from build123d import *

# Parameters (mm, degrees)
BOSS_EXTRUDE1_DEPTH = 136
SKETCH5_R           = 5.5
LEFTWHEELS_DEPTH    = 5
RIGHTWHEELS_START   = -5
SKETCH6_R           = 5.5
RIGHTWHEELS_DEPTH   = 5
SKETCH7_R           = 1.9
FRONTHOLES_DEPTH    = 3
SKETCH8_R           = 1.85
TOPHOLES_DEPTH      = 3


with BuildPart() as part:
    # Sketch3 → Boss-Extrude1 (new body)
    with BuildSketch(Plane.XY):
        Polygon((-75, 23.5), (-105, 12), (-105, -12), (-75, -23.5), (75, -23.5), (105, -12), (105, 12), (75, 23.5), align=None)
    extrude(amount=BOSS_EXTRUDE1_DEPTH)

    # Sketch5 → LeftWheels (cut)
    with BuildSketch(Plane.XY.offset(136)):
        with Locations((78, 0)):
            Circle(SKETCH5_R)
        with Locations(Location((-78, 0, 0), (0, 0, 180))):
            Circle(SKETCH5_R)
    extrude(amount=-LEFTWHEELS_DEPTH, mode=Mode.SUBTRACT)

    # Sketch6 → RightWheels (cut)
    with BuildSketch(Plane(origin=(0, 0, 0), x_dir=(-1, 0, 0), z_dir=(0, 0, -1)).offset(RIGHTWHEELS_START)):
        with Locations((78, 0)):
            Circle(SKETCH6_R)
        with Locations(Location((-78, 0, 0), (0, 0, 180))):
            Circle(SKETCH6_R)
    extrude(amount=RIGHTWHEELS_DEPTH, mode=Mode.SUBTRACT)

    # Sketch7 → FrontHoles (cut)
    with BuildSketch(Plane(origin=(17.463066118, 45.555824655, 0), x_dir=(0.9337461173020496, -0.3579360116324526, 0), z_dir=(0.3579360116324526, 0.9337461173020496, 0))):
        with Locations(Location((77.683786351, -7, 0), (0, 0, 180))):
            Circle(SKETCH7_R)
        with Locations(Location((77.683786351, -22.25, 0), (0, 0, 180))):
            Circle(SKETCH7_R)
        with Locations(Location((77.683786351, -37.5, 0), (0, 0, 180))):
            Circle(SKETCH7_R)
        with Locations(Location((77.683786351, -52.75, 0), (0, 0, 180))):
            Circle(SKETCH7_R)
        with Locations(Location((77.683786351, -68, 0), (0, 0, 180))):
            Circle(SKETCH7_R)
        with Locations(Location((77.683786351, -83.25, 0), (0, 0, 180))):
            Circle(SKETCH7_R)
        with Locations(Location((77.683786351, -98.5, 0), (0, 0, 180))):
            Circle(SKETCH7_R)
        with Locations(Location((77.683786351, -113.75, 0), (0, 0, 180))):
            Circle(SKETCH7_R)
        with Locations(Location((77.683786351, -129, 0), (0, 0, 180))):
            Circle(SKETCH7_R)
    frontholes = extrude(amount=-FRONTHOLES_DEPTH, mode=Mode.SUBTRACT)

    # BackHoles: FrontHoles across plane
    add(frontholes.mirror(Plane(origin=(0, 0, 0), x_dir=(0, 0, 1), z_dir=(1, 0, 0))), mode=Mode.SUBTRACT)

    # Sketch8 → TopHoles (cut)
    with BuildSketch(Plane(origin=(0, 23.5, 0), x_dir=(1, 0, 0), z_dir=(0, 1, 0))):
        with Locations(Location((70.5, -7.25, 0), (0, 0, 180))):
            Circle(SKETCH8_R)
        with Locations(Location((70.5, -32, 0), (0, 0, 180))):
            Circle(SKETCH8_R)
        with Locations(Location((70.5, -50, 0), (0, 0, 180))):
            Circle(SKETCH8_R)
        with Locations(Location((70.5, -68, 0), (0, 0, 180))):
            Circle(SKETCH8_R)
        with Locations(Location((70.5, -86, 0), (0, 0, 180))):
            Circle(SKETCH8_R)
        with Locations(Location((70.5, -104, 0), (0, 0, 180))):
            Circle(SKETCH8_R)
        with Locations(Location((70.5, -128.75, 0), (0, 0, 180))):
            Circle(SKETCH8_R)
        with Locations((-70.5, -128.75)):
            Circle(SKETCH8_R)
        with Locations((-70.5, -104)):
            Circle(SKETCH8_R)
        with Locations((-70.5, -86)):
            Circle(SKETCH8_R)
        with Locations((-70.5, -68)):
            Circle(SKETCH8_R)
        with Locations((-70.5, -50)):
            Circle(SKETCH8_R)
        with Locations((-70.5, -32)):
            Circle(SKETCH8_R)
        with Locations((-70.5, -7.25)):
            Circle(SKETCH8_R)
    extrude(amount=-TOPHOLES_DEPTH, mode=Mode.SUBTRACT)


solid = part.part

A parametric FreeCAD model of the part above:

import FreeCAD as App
import Part
import Sketcher

V = App.Vector


def add_polygon(sketch, points):
    """Adds a closed chain of lines whose ends are joined by coincident constraints."""
    first, n = sketch.GeometryCount, len(points)
    for a, b in zip(points, points[1:] + points[:1]):
        sketch.addGeometry(Part.LineSegment(App.Vector(*a, 0), App.Vector(*b, 0)), False)
    for i in range(n):
        sketch.addConstraint(Sketcher.Constraint("Coincident", first + i, 2, first + (i + 1) % n, 1))

doc = App.newDocument("Part")
body = doc.addObject("PartDesign::Body", "Body")

# Sketch on XY plane
sketch1 = body.newObject("Sketcher::SketchObject", "Sketch")
sketch1.AttachmentSupport = (doc.getObject("XY_Plane"), [""])
sketch1.MapMode = "FlatFace"
add_polygon(sketch1, [(-75, 24), (-105, 12), (-105, -12), (-75, -24), (75, -24), (105, -12), (105, 12), (75, 24)])  # lines 0-7
sketch1.addConstraint(Sketcher.Constraint("Vertical", 1))
sketch1.addConstraint(Sketcher.Constraint("Horizontal", 3))
sketch1.addConstraint(Sketcher.Constraint("Vertical", 5))
sketch1.addConstraint(Sketcher.Constraint("Horizontal", 7))
sketch1.addConstraint(Sketcher.Constraint("Symmetric", 0, 2, 4, 2, -1, 1))
sketch1.addConstraint(Sketcher.Constraint("Symmetric", 2, 2, 6, 2, -1, 1))
sketch1.addConstraint(Sketcher.Constraint("Parallel", 0, 4))
sketch1.addConstraint(Sketcher.Constraint("Parallel", 2, 6))
sketch1.addConstraint(Sketcher.Constraint("Horizontal", 1, 2, 4, 2))
sketch1.addConstraint(Sketcher.Constraint("Vertical", 3, 2, 6, 2))
sketch1.addConstraint(Sketcher.Constraint("DistanceX", 3, 1, 3, 2, 150.0))
sketch1.addConstraint(Sketcher.Constraint("DistanceY", 1, 2, 1, 1, 24.0))
sketch1.addConstraint(Sketcher.Constraint("DistanceX", 0, 2, -1, 1, 105.0))
sketch1.addConstraint(Sketcher.Constraint("DistanceY", 3, 2, 6, 2, 47.0))
pad1 = body.newObject("PartDesign::Pad", "Pad")
pad1.Profile = sketch1
pad1.Length = 136

# Sketch on XY plane
sketch2 = body.newObject("Sketcher::SketchObject", "Sketch001")
sketch2.AttachmentSupport = (doc.getObject("XY_Plane"), [""])
sketch2.MapMode = "FlatFace"
sketch2.AttachmentOffset = App.Placement(V(0, 0, 136), App.Rotation())
sketch2.addGeometry(Part.Circle(V(78, 0, 0), V(0, 0, 1), 6), False)
sketch2.addGeometry(Part.Circle(V(-78, 0, 0), V(0, 0, 1), 6), False)
sketch2.addConstraint(Sketcher.Constraint("Equal", 0, 1))
sketch2.addConstraint(Sketcher.Constraint("Symmetric", 0, 3, 1, 3, -1, 1))
sketch2.addConstraint(Sketcher.Constraint("PointOnObject", 0, 3, -1))
sketch2.addConstraint(Sketcher.Constraint("Diameter", 0, 11.0))
sketch2.addConstraint(Sketcher.Constraint("DistanceX", -1, 1, 0, 3, 78.0))
pocket1 = body.newObject("PartDesign::Pocket", "Pocket")
pocket1.Profile = sketch2
pocket1.Length = 5

# Sketch on XY plane
sketch3 = body.newObject("Sketcher::SketchObject", "Sketch002")
sketch3.AttachmentSupport = (doc.getObject("XY_Plane"), [""])
sketch3.MapMode = "FlatFace"
sketch3.AttachmentOffset = App.Placement(V(0, 0, 5), App.Rotation())
sketch3.addGeometry(Part.Circle(V(-78, 0, 0), V(0, 0, 1), 6), False)
sketch3.addGeometry(Part.Circle(V(78, 0, 0), V(0, 0, 1), 6), False)
sketch3.addConstraint(Sketcher.Constraint("Equal", 0, 1))
sketch3.addConstraint(Sketcher.Constraint("Symmetric", 0, 3, 1, 3, -1, 1))
sketch3.addConstraint(Sketcher.Constraint("PointOnObject", 0, 3, -1))
sketch3.addConstraint(Sketcher.Constraint("Diameter", 0, 11.0))
sketch3.addConstraint(Sketcher.Constraint("DistanceX", 0, 3, -1, 1, 78.0))
pocket2 = body.newObject("PartDesign::Pocket", "Pocket001")
pocket2.Profile = sketch3
pocket2.Length = 5

# Sketch on an angled plane
sketch4 = body.newObject("Sketcher::SketchObject", "Sketch003")
sketch4.Placement = App.Placement(V(17.463066, 45.555825, 0), App.Rotation(V(0.933746117, -0.357936012, 0), V(0, 0, -1), V(0.357936012, 0.933746117, 0), "ZXY"))
sketch4.addGeometry(Part.Circle(V(77.7, -7, 0), V(0, 0, 1), 1.9), False)
sketch4.addGeometry(Part.Circle(V(77.7, -22.2, 0), V(0, 0, 1), 1.9), False)
sketch4.addGeometry(Part.Circle(V(77.7, -37.5, 0), V(0, 0, 1), 1.9), False)
sketch4.addGeometry(Part.Circle(V(77.7, -52.7, 0), V(0, 0, 1), 1.9), False)
sketch4.addGeometry(Part.Circle(V(77.7, -68, 0), V(0, 0, 1), 1.9), False)
sketch4.addGeometry(Part.Circle(V(77.7, -83.2, 0), V(0, 0, 1), 1.9), False)
sketch4.addGeometry(Part.Circle(V(77.7, -98.5, 0), V(0, 0, 1), 1.9), False)
sketch4.addGeometry(Part.Circle(V(77.7, -113.7, 0), V(0, 0, 1), 1.9), False)
sketch4.addGeometry(Part.Circle(V(77.7, -129, 0), V(0, 0, 1), 1.9), False)
sketch4.addConstraint(Sketcher.Constraint("Equal", 0, 1))
sketch4.addConstraint(Sketcher.Constraint("Equal", 1, 2))
sketch4.addConstraint(Sketcher.Constraint("Equal", 2, 3))
sketch4.addConstraint(Sketcher.Constraint("Equal", 3, 4))
sketch4.addConstraint(Sketcher.Constraint("Equal", 4, 5))
sketch4.addConstraint(Sketcher.Constraint("Equal", 5, 6))
sketch4.addConstraint(Sketcher.Constraint("Equal", 6, 7))
sketch4.addConstraint(Sketcher.Constraint("Equal", 7, 8))
sketch4.addConstraint(Sketcher.Constraint("Vertical", 0, 3, 1, 3))
sketch4.addConstraint(Sketcher.Constraint("Vertical", 1, 3, 2, 3))
sketch4.addConstraint(Sketcher.Constraint("Vertical", 2, 3, 3, 3))
sketch4.addConstraint(Sketcher.Constraint("Vertical", 3, 3, 4, 3))
sketch4.addConstraint(Sketcher.Constraint("Vertical", 4, 3, 5, 3))
sketch4.addConstraint(Sketcher.Constraint("Vertical", 5, 3, 6, 3))
sketch4.addConstraint(Sketcher.Constraint("Vertical", 6, 3, 7, 3))
sketch4.addConstraint(Sketcher.Constraint("Vertical", 7, 3, 8, 3))
sketch4.addConstraint(Sketcher.Constraint("Diameter", 0, 3.8))
sketch4.addConstraint(Sketcher.Constraint("DistanceY", 0, 3, -1, 1, 7.0))
sketch4.addConstraint(Sketcher.Constraint("DistanceY", 4, 3, -1, 1, 68.0))
sketch4.addConstraint(Sketcher.Constraint("DistanceY", 8, 3, -1, 1, 129.0))
sketch4.addConstraint(Sketcher.Constraint("DistanceY", 5, 3, 1, 3, 61.0))
sketch4.addConstraint(Sketcher.Constraint("DistanceY", 6, 3, 2, 3, 61.0))
sketch4.addConstraint(Sketcher.Constraint("DistanceY", 7, 3, 3, 3, 61.0))
sketch4.addConstraint(Sketcher.Constraint("DistanceY", 2, 3, -1, 1, 37.5))
sketch4.addConstraint(Sketcher.Constraint("DistanceY", 3, 3, 1, 3, 30.5))
sketch4.addConstraint(Sketcher.Constraint("DistanceY", 1, 3, -1, 1, 22.25))
sketch4.addConstraint(Sketcher.Constraint("DistanceX", -1, 1, 0, 3, 77.683786))
pocket3 = body.newObject("PartDesign::Pocket", "Pocket002")
pocket3.Profile = sketch4
pocket3.Length = 3
doc.recompute()

mirrored = body.newObject("PartDesign::Mirrored", "Mirrored")
mirrored.Originals = [pocket3]
mirrored.MirrorPlane = (doc.getObject("YZ_Plane"), [""])
body.Tip = mirrored

# Sketch on XZ plane
sketch5 = body.newObject("Sketcher::SketchObject", "Sketch004")
sketch5.AttachmentSupport = (doc.getObject("XZ_Plane"), [""])
sketch5.MapMode = "FlatFace"
sketch5.AttachmentOffset = App.Placement(V(0, 0, -23.5), App.Rotation())
sketch5.addGeometry(Part.Circle(V(70.5, 7.2, 0), V(0, 0, 1), 1.9), False)
sketch5.addGeometry(Part.Circle(V(70.5, 32, 0), V(0, 0, 1), 1.9), False)
sketch5.addGeometry(Part.Circle(V(70.5, 50, 0), V(0, 0, 1), 1.9), False)
sketch5.addGeometry(Part.Circle(V(70.5, 68, 0), V(0, 0, 1), 1.9), False)
sketch5.addGeometry(Part.Circle(V(70.5, 86, 0), V(0, 0, 1), 1.9), False)
sketch5.addGeometry(Part.Circle(V(70.5, 104, 0), V(0, 0, 1), 1.9), False)
sketch5.addGeometry(Part.Circle(V(70.5, 128.8, 0), V(0, 0, 1), 1.9), False)
sketch5.addGeometry(Part.Circle(V(-70.5, 128.8, 0), V(0, 0, 1), 1.9), False)
sketch5.addGeometry(Part.Circle(V(-70.5, 104, 0), V(0, 0, 1), 1.9), False)
sketch5.addGeometry(Part.Circle(V(-70.5, 86, 0), V(0, 0, 1), 1.9), False)
sketch5.addGeometry(Part.Circle(V(-70.5, 68, 0), V(0, 0, 1), 1.9), False)
sketch5.addGeometry(Part.Circle(V(-70.5, 50, 0), V(0, 0, 1), 1.9), False)
sketch5.addGeometry(Part.Circle(V(-70.5, 32, 0), V(0, 0, 1), 1.9), False)
sketch5.addGeometry(Part.Circle(V(-70.5, 7.2, 0), V(0, 0, 1), 1.9), False)
sketch5.addConstraint(Sketcher.Constraint("Equal", 0, 1))
sketch5.addConstraint(Sketcher.Constraint("Equal", 1, 2))
sketch5.addConstraint(Sketcher.Constraint("Equal", 2, 3))
sketch5.addConstraint(Sketcher.Constraint("Equal", 3, 4))
sketch5.addConstraint(Sketcher.Constraint("Equal", 4, 5))
sketch5.addConstraint(Sketcher.Constraint("Equal", 5, 6))
sketch5.addConstraint(Sketcher.Constraint("Equal", 6, 7))
sketch5.addConstraint(Sketcher.Constraint("Equal", 7, 8))
sketch5.addConstraint(Sketcher.Constraint("Equal", 8, 9))
sketch5.addConstraint(Sketcher.Constraint("Equal", 9, 10))
sketch5.addConstraint(Sketcher.Constraint("Equal", 10, 11))
sketch5.addConstraint(Sketcher.Constraint("Equal", 11, 12))
sketch5.addConstraint(Sketcher.Constraint("Equal", 12, 13))
sketch5.addConstraint(Sketcher.Constraint("Symmetric", 6, 3, 7, 3, -2))
sketch5.addConstraint(Sketcher.Constraint("Symmetric", 5, 3, 8, 3, -2))
sketch5.addConstraint(Sketcher.Constraint("Symmetric", 4, 3, 9, 3, -2))
sketch5.addConstraint(Sketcher.Constraint("Symmetric", 3, 3, 10, 3, -2))
sketch5.addConstraint(Sketcher.Constraint("Symmetric", 2, 3, 11, 3, -2))
sketch5.addConstraint(Sketcher.Constraint("Symmetric", 1, 3, 12, 3, -2))
sketch5.addConstraint(Sketcher.Constraint("Symmetric", 0, 3, 13, 3, -2))
sketch5.addConstraint(Sketcher.Constraint("Vertical", 0, 3, 1, 3))
sketch5.addConstraint(Sketcher.Constraint("Vertical", 1, 3, 2, 3))
sketch5.addConstraint(Sketcher.Constraint("Vertical", 2, 3, 3, 3))
sketch5.addConstraint(Sketcher.Constraint("Vertical", 3, 3, 4, 3))
sketch5.addConstraint(Sketcher.Constraint("Vertical", 4, 3, 5, 3))
sketch5.addConstraint(Sketcher.Constraint("Vertical", 5, 3, 6, 3))
sketch5.addConstraint(Sketcher.Constraint("Diameter", 0, 3.7))
sketch5.addConstraint(Sketcher.Constraint("DistanceY", -1, 1, 1, 3, 32.0))
sketch5.addConstraint(Sketcher.Constraint("DistanceY", -1, 1, 2, 3, 50.0))
sketch5.addConstraint(Sketcher.Constraint("DistanceY", -1, 1, 3, 3, 68.0))
sketch5.addConstraint(Sketcher.Constraint("DistanceY", -1, 1, 4, 3, 86.0))
sketch5.addConstraint(Sketcher.Constraint("DistanceY", -1, 1, 5, 3, 104.0))
sketch5.addConstraint(Sketcher.Constraint("DistanceX", 7, 3, 6, 3, 141.0))
sketch5.addConstraint(Sketcher.Constraint("DistanceY", -1, 1, 0, 3, 7.25))
sketch5.addConstraint(Sketcher.Constraint("DistanceY", -1, 1, 6, 3, 128.75))
pocket4 = body.newObject("PartDesign::Pocket", "Pocket003")
pocket4.Profile = sketch5
pocket4.Length = 3
pocket4.Reversed = True

doc.recompute()
